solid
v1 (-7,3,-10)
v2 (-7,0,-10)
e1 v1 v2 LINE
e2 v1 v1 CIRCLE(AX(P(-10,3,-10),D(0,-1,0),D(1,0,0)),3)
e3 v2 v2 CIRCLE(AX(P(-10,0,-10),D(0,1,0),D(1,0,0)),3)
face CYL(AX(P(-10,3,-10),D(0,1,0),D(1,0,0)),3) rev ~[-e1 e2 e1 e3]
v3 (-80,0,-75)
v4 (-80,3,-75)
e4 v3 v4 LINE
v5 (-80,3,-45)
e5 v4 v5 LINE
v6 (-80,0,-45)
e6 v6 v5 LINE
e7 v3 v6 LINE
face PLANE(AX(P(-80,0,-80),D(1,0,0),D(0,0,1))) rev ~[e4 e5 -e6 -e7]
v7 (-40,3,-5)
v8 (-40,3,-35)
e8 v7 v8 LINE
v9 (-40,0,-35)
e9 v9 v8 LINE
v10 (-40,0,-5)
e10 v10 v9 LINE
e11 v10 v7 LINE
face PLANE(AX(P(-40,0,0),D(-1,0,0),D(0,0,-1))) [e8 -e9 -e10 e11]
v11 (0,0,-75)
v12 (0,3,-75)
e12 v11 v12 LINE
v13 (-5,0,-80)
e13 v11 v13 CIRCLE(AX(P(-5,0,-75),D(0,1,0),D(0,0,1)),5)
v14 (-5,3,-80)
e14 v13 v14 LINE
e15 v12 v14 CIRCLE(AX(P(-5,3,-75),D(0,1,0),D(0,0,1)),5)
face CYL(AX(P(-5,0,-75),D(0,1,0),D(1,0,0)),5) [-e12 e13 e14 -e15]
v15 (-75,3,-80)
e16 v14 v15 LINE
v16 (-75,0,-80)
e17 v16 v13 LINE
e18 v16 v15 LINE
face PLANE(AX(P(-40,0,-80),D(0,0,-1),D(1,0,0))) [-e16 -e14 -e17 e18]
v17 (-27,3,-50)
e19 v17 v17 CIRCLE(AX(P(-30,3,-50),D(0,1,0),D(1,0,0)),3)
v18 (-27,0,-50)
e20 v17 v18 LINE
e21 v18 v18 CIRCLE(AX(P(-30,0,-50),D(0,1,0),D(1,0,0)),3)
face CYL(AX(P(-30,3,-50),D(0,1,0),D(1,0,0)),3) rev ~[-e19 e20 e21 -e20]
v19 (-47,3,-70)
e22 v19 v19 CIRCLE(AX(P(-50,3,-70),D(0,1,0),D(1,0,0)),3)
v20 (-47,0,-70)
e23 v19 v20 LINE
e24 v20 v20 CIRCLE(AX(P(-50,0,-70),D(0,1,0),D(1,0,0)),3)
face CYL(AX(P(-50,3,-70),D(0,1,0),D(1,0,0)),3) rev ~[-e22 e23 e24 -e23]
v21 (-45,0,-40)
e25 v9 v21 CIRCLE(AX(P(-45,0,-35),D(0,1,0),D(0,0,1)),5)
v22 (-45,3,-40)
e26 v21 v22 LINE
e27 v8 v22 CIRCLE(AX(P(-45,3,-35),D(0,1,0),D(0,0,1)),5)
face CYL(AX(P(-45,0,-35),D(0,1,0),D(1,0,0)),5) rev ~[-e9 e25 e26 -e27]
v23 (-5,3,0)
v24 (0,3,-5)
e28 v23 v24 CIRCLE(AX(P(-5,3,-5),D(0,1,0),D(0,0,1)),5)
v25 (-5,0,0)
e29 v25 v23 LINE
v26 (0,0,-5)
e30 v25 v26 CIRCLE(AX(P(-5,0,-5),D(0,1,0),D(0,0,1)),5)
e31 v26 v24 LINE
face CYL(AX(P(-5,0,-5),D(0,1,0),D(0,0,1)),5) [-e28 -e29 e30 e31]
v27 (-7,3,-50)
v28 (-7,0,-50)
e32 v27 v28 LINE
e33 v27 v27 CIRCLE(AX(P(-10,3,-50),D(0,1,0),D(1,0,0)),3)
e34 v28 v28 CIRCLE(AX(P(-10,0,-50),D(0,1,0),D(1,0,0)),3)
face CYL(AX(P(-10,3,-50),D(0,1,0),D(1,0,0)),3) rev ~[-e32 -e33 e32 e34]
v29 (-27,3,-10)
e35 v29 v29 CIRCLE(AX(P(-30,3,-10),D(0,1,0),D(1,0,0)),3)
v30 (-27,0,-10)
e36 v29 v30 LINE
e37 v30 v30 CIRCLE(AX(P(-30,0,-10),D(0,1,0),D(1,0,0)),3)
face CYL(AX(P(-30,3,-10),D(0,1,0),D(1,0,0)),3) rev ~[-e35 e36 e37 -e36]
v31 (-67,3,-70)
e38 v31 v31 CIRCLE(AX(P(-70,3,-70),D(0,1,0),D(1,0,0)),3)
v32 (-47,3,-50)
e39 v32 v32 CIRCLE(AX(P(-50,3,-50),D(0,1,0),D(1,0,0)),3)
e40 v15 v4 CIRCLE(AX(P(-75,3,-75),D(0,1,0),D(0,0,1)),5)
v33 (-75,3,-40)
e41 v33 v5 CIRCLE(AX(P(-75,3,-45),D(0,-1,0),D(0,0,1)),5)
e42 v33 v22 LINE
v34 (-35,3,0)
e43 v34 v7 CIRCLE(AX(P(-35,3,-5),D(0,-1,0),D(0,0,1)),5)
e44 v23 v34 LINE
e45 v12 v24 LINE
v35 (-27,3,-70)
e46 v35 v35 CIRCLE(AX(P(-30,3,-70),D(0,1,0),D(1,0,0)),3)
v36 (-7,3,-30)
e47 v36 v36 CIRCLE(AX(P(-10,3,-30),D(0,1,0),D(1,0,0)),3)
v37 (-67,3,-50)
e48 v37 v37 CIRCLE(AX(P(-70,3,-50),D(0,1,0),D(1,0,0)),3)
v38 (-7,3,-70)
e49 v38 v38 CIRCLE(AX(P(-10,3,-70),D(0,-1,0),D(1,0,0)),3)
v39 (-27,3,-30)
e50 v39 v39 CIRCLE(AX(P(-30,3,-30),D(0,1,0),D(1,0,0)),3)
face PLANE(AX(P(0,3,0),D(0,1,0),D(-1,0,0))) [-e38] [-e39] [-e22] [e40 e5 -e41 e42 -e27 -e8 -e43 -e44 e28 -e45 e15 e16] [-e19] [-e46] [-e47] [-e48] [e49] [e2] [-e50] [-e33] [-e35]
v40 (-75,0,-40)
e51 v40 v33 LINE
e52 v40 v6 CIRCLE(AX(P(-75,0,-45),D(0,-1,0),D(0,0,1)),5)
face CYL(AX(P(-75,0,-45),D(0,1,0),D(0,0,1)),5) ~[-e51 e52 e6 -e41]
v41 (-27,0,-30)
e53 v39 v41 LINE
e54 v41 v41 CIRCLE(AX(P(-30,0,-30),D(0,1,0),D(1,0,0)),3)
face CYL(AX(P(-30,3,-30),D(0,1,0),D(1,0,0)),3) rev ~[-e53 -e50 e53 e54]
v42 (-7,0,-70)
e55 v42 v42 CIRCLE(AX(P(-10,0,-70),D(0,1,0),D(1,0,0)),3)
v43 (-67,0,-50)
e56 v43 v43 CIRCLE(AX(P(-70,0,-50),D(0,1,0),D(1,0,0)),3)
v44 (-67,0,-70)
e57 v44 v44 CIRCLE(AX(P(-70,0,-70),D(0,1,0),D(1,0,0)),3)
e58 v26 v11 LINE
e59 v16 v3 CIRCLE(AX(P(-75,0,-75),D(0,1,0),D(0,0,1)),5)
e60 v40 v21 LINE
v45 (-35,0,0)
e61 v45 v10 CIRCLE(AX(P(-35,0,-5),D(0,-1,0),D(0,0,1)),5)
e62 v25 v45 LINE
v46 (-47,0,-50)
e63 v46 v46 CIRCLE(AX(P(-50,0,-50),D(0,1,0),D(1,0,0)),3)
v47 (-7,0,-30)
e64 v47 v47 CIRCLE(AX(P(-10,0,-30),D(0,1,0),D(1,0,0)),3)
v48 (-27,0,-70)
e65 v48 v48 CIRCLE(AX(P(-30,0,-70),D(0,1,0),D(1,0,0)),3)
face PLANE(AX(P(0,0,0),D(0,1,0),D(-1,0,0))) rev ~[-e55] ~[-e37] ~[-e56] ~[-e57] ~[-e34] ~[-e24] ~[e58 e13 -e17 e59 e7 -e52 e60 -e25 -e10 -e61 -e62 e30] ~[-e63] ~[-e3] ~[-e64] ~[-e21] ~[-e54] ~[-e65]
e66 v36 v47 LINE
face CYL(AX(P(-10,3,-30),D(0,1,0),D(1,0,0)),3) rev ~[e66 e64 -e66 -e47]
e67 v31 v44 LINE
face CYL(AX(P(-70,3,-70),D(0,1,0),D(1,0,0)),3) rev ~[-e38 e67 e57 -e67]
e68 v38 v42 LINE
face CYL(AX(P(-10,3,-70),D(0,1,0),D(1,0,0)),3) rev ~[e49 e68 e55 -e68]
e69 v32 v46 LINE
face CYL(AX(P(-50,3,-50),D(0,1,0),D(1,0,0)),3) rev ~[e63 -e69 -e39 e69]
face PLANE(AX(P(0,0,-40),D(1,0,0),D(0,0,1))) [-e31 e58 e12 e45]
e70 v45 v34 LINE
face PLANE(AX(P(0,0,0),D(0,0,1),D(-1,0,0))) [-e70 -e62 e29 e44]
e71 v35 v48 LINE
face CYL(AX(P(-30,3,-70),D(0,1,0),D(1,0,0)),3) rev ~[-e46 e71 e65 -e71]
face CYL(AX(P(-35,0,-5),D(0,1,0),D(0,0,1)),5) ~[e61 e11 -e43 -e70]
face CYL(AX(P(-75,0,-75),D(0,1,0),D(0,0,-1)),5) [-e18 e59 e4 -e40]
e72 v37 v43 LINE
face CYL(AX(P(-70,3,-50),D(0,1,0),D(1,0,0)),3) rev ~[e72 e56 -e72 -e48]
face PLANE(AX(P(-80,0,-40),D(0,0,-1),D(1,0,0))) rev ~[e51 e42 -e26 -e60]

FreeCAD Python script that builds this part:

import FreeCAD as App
import Part
import Sketcher

V = App.Vector
Q = App.Units.Quantity


def edges_at(feature, points):
    """Names of the edges that pass closest to the given points."""
    edges = feature.Shape.Edges
    near = lambda p: min(range(len(edges)), key=lambda i: edges[i].distToShape(Part.Vertex(*p))[0])
    return sorted({f"Edge{near(p) + 1}" for p in points})


def add_polygon(sketch, points):
    """Adds a closed chain of lines whose ends are joined by coincident constraints."""
    first, n = sketch.GeometryCount, len(points)
    for a, b in zip(points, points[1:] + points[:1]):
        sketch.addGeometry(Part.LineSegment(App.Vector(*a, 0), App.Vector(*b, 0)), False)
    for i in range(n):
        sketch.addConstraint(Sketcher.Constraint("Coincident", first + i, 2, first + (i + 1) % n, 1))

doc = App.newDocument("Part")
body = doc.addObject("PartDesign::Body", "Body")

# Sketch on XZ plane
sketch1 = doc.addObject("Sketcher::SketchObject", "Sketch")
body.addObject(sketch1)
sketch1.AttachmentSupport = (doc.XZ_Plane, [""])
sketch1.MapMode = "FlatFace"
add_polygon(sketch1, [(-40, 0), (0, 0), (0, -80), (-80, -80), (-80, -40), (-40, -40)])  # lines 0-5
sketch1.addConstraint(Sketcher.Constraint("Horizontal", 0))
sketch1.addConstraint(Sketcher.Constraint("Vertical", 1))
sketch1.addConstraint(Sketcher.Constraint("Horizontal", 2))
sketch1.addConstraint(Sketcher.Constraint("Vertical", 3))
sketch1.addConstraint(Sketcher.Constraint("Horizontal", 4))
sketch1.addConstraint(Sketcher.Constraint("Vertical", 5))
sketch1.addConstraint(Sketcher.Constraint("Coincident", 0, 2, -1, 1))
sketch1.addConstraint(Sketcher.Constraint("Equal", 0, 4))
sketch1.addConstraint(Sketcher.Constraint("Equal", 2, 1))
sketch1.addConstraint(Sketcher.Constraint("Equal", 4, 3))
sketch1.addConstraint(Sketcher.Constraint("DistanceX", 0, 1, 0, 2, Q("40 mm")))
pad1 = doc.addObject("PartDesign::Pad", "Pad")
body.addObject(pad1)
pad1.Profile = sketch1
pad1.Length = 3
pad1.Reversed = True

# Sketch on XZ plane
sketch2 = doc.addObject("Sketcher::SketchObject", "Sketch001")
body.addObject(sketch2)
sketch2.AttachmentSupport = (doc.XZ_Plane, [""])
sketch2.MapMode = "FlatFace"
sketch2.AttachmentOffset = App.Placement(V(0, 0, -3), App.Rotation())
sketch2.addGeometry(Part.Circle(V(-10, -10, 0), V(0, 0, 1), 3), False)
sketch2.addGeometry(Part.Circle(V(-10, -70, 0), V(0, 0, 1), 3), False)
sketch2.addGeometry(Part.Circle(V(-10, -30, 0), V(0, 0, 1), 3), False)
sketch2.addGeometry(Part.Circle(V(-10, -50, 0), V(0, 0, 1), 3), False)
sketch2.addGeometry(Part.Circle(V(-30, -10, 0), V(0, 0, 1), 3), False)
sketch2.addGeometry(Part.Circle(V(-30, -30, 0), V(0, 0, 1), 3), False)
sketch2.addGeometry(Part.Circle(V(-30, -50, 0), V(0, 0, 1), 3), False)
sketch2.addGeometry(Part.Circle(V(-30, -70, 0), V(0, 0, 1), 3), False)
sketch2.addGeometry(Part.Circle(V(-50, -70, 0), V(0, 0, 1), 3), False)
sketch2.addGeometry(Part.Circle(V(-70, -70, 0), V(0, 0, 1), 3), False)
sketch2.addGeometry(Part.Circle(V(-50, -50, 0), V(0, 0, 1), 3), False)
sketch2.addGeometry(Part.Circle(V(-70, -50, 0), V(0, 0, 1), 3), False)
sketch2.addConstraint(Sketcher.Constraint("Equal", 0, 1))
sketch2.addConstraint(Sketcher.Constraint("Equal", 1, 2))
sketch2.addConstraint(Sketcher.Constraint("Equal", 2, 3))
sketch2.addConstraint(Sketcher.Constraint("Equal", 3, 4))
sketch2.addConstraint(Sketcher.Constraint("Equal", 4, 5))
sketch2.addConstraint(Sketcher.Constraint("Equal", 5, 6))
sketch2.addConstraint(Sketcher.Constraint("Equal", 6, 7))
sketch2.addConstraint(Sketcher.Constraint("Equal", 7, 8))
sketch2.addConstraint(Sketcher.Constraint("Equal", 8, 9))
sketch2.addConstraint(Sketcher.Constraint("Equal", 9, 10))
sketch2.addConstraint(Sketcher.Constraint("Equal", 10, 11))
sketch2.addConstraint(Sketcher.Constraint("Horizontal", 0, 3, 4, 3))
sketch2.addConstraint(Sketcher.Constraint("Horizontal", 2, 3, 5, 3))
sketch2.addConstraint(Sketcher.Constraint("Horizontal", 3, 3, 6, 3))
sketch2.addConstraint(Sketcher.Constraint("Horizontal", 1, 3, 7, 3))
sketch2.addConstraint(Sketcher.Constraint("Horizontal", 7, 3, 8, 3))
sketch2.addConstraint(Sketcher.Constraint("Horizontal", 8, 3, 9, 3))
sketch2.addConstraint(Sketcher.Constraint("Horizontal", 6, 3, 10, 3))
sketch2.addConstraint(Sketcher.Constraint("Horizontal", 10, 3, 11, 3))
sketch2.addConstraint(Sketcher.Constraint("Vertical", 0, 3, 1, 3))
sketch2.addConstraint(Sketcher.Constraint("Vertical", 1, 3, 2, 3))
sketch2.addConstraint(Sketcher.Constraint("Vertical", 2, 3, 3, 3))
sketch2.addConstraint(Sketcher.Constraint("Vertical", 4, 3, 5, 3))
sketch2.addConstraint(Sketcher.Constraint("Vertical", 5, 3, 6, 3))
sketch2.addConstraint(Sketcher.Constraint("Vertical", 6, 3, 7, 3))
sketch2.addConstraint(Sketcher.Constraint("Vertical", 8, 3, 10, 3))
sketch2.addConstraint(Sketcher.Constraint("Vertical", 9, 3, 11, 3))
sketch2.addConstraint(Sketcher.Constraint("Diameter", 0, Q("6 mm")))
sketch2.addConstraint(Sketcher.Constraint("DistanceX", 0, 3, -1, 1, Q("10 mm")))
sketch2.addConstraint(Sketcher.Constraint("DistanceY", 0, 3, -1, 1, Q("10 mm")))
sketch2.addConstraint(Sketcher.Constraint("DistanceY", 2, 3, 0, 3, Q("20 mm")))
sketch2.addConstraint(Sketcher.Constraint("DistanceY", 1, 3, 3, 3, Q("20 mm")))
sketch2.addConstraint(Sketcher.Constraint("DistanceY", 3, 3, 2, 3, Q("20 mm")))
sketch2.addConstraint(Sketcher.Constraint("DistanceX", 4, 3, 0, 3, Q("20 mm")))
sketch2.addConstraint(Sketcher.Constraint("DistanceX", 8, 3, 7, 3, Q("20 mm")))
sketch2.addConstraint(Sketcher.Constraint("DistanceX", 9, 3, 8, 3, Q("20 mm")))
pocket1 = doc.addObject("PartDesign::Pocket", "Pocket")
body.addObject(pocket1)
pocket1.Profile = sketch2
pocket1.Type = "ThroughAll"
pocket1.Reversed = True
doc.recompute()

fillet = doc.addObject("PartDesign::Fillet", "Fillet")
body.addObject(fillet)
fillet.Base = (pocket1, edges_at(pocket1, [
    (0, 1.5, 0),
    (-40, 1.5, 0),
    (0, 1.5, -80),
    (-40, 1.5, -40),
    (-80, 1.5, -40),
    (-80, 1.5, -80),
]))
fillet.Radius = 5

doc.recompute()
